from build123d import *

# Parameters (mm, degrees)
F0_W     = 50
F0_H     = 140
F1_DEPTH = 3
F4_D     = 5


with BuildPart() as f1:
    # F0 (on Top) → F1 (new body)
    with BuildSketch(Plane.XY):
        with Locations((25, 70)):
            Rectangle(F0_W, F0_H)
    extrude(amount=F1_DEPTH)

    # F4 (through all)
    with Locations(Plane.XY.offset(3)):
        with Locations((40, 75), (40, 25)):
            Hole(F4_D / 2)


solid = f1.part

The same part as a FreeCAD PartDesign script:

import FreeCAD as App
import Part
import Sketcher

V = App.Vector
Q = App.Units.Quantity


def add_polygon(sketch, points):
    """Adds a closed chain of lines whose ends are joined by coincident constraints."""
    first, n = sketch.GeometryCount, len(points)
    for a, b in zip(points, points[1:] + points[:1]):
        sketch.addGeometry(Part.LineSegment(App.Vector(*a, 0), App.Vector(*b, 0)), False)
    for i in range(n):
        sketch.addConstraint(Sketcher.Constraint("Coincident", first + i, 2, first + (i + 1) % n, 1))

doc = App.newDocument("Part")
params = doc.addObject("Spreadsheet::Sheet", "Params")
for row, (alias, value) in enumerate([
    ("sketch1_width", "50 mm"),
    ("sketch1_height", "140 mm"),
    ("pad1_length", "3 mm"),
    ("sketch2_diameter", "5 mm"),
    ("hole_diameter", "5 mm"),
], start=1):
    params.set(f"A{row}", alias)
    params.set(f"B{row}", "=" + value)
    params.setAlias(f"B{row}", alias)

body = doc.addObject("PartDesign::Body", "Body")

sketch1 = doc.addObject("Sketcher::SketchObject", "Sketch")
body.addObject(sketch1)
sketch1.AttachmentSupport = (doc.XY_Plane, [""])
sketch1.MapMode = "FlatFace"
add_polygon(sketch1, [(0, 140), (0, 0), (50, 0), (50, 140)])
sketch1.addConstraint(Sketcher.Constraint("Vertical", 0))
sketch1.addConstraint(Sketcher.Constraint("Horizontal", 1))
sketch1.addConstraint(Sketcher.Constraint("Vertical", 2))
sketch1.addConstraint(Sketcher.Constraint("Horizontal", 3))
sketch1.addConstraint(Sketcher.Constraint("Coincident", 0, 2, -1, 1))
sketch1.addConstraint(Sketcher.Constraint("DistanceX", 1, 1, 1, 2, Q("50 mm")))
sketch1.addConstraint(Sketcher.Constraint("DistanceY", 0, 2, 0, 1, Q("140 mm")))
sketch1.setExpression("Constraints[9]", "Params.sketch1_width")
sketch1.setExpression("Constraints[10]", "Params.sketch1_height")
pad1 = doc.addObject("PartDesign::Pad", "Pad")
body.addObject(pad1)
pad1.Profile = sketch1
pad1.setExpression("Length", "Params.pad1_length")

sketch2 = doc.addObject("Sketcher::SketchObject", "Sketch001")
body.addObject(sketch2)
sketch2.AttachmentSupport = (doc.XY_Plane, [""])
sketch2.MapMode = "FlatFace"
sketch2.AttachmentOffset = App.Placement(V(0, 0, 3), App.Rotation())
sketch2.addGeometry(Part.Circle(V(40, 75, 0), V(0, 0, 1), 2.5), False)
sketch2.addGeometry(Part.Circle(V(40, 25, 0), V(0, 0, 1), 2.5), False)
sketch2.addConstraint(Sketcher.Constraint("Equal", 0, 1))
sketch2.addConstraint(Sketcher.Constraint("Vertical", 0, 3, 1, 3))
sketch2.addConstraint(Sketcher.Constraint("Diameter", 0, Q("5 mm")))
sketch2.addConstraint(Sketcher.Constraint("DistanceX", -1, 1, 0, 3, Q("40 mm")))
sketch2.addConstraint(Sketcher.Constraint("DistanceY", -1, 1, 0, 3, Q("75 mm")))
sketch2.addConstraint(Sketcher.Constraint("DistanceY", -1, 1, 1, 3, Q("25 mm")))
sketch2.setExpression("Constraints[2]", "Params.sketch2_diameter")
doc.recompute()
hole = doc.addObject("PartDesign::Hole", "Hole")
body.addObject(hole)
hole.Profile = sketch2
hole.ThreadType = "None"
hole.setExpression("Diameter", "Params.hole_diameter")
hole.DepthType = "ThroughAll"

doc.recompute()
